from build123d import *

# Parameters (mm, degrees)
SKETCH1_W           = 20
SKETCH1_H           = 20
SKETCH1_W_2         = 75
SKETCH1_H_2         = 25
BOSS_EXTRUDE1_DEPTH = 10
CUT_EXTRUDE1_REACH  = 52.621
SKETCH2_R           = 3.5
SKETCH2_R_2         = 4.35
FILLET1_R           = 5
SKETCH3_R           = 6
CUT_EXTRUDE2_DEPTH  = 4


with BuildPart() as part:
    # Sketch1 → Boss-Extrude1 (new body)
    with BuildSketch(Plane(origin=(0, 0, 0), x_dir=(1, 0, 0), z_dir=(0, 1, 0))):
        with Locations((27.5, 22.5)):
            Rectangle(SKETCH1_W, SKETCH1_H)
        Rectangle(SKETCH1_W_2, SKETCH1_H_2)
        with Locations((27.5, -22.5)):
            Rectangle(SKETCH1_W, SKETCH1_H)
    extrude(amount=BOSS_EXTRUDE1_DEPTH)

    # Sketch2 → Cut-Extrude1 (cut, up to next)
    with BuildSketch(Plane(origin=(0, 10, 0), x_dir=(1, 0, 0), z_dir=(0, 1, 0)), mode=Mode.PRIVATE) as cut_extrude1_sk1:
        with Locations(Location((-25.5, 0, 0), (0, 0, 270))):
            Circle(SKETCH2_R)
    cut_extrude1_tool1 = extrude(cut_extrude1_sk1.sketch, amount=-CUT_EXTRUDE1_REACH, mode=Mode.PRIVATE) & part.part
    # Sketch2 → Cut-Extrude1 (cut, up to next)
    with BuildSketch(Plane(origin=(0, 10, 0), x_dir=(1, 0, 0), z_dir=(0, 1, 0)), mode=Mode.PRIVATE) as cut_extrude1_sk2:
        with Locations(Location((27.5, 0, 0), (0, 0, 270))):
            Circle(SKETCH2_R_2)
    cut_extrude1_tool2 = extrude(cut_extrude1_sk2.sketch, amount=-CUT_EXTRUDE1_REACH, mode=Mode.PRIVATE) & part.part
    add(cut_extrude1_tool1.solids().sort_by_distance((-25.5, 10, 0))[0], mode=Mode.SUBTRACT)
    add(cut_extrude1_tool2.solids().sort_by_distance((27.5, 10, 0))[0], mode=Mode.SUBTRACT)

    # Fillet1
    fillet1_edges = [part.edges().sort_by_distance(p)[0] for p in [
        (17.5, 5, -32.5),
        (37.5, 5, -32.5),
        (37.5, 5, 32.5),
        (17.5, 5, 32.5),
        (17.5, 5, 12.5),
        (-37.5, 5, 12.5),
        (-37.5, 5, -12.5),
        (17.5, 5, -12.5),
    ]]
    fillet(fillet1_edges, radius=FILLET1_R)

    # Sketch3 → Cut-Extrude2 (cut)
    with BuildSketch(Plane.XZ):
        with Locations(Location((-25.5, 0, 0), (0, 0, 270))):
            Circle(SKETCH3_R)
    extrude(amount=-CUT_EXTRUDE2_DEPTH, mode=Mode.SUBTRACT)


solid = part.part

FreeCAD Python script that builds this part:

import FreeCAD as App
import Part
import Sketcher
from FreeCAD import Vector


def edges_at(feature, points):
    """Names of the edges that pass closest to the given points."""
    edges = feature.Shape.Edges
    near = lambda p: min(range(len(edges)), key=lambda i: edges[i].distToShape(Part.Vertex(*p))[0])
    return sorted({f"Edge{near(p) + 1}" for p in points})


def add_polygon(sketch, points):
    """Adds a closed chain of lines whose ends are joined by coincident constraints."""
    first, n = sketch.GeometryCount, len(points)
    for a, b in zip(points, points[1:] + points[:1]):
        sketch.addGeometry(Part.LineSegment(App.Vector(*a, 0), App.Vector(*b, 0)), False)
    for i in range(n):
        sketch.addConstraint(Sketcher.Constraint("Coincident", first + i, 2, first + (i + 1) % n, 1))

doc = App.newDocument("Part")
body = doc.addObject("PartDesign::Body", "Body")

# Sketch on XZ plane
sketch1 = body.newObject("Sketcher::SketchObject", "Sketch")
sketch1.AttachmentSupport = (doc.getObject("XZ_Plane"), [""])
sketch1.MapMode = "FlatFace"
add_polygon(sketch1, [(18, -32), (18, -12), (-38, -12), (-38, 12), (18, 12), (18, 32), (38, 32), (38, -32)])  # lines 0-7
sketch1.addConstraint([
    Sketcher.Constraint("Vertical", 0),
    Sketcher.Constraint("Horizontal", 1),
    Sketcher.Constraint("Vertical", 2),
    Sketcher.Constraint("Horizontal", 3),
    Sketcher.Constraint("Vertical", 4),
    Sketcher.Constraint("Horizontal", 5),
    Sketcher.Constraint("Vertical", 6),
    Sketcher.Constraint("Horizontal", 7),
    Sketcher.Constraint("Symmetric", 0, 2, 3, 2, -1),
    Sketcher.Constraint("Equal", 7, 0),
    Sketcher.Constraint("Equal", 0, 4),
    Sketcher.Constraint("DistanceX", 1, 2, 1, 1, 55.0),
    Sketcher.Constraint("DistanceX", 5, 1, 5, 2, 20.0),
    Sketcher.Constraint("DistanceY", 2, 1, 2, 2, 25.0),
    Sketcher.Constraint("DistanceX", -1, 1, 0, 2, 17.5),
])
pad1 = body.newObject("PartDesign::Pad", "Pad")
pad1.Profile = sketch1
pad1.Length = 10
pad1.Reversed = True

# Sketch on XZ plane
sketch2 = body.newObject("Sketcher::SketchObject", "Sketch001")
sketch2.AttachmentSupport = (doc.getObject("XZ_Plane"), [""])
sketch2.MapMode = "FlatFace"
sketch2.AttachmentOffset = App.Placement(Vector(0, 0, -10), App.Rotation())
sketch2.addGeometry(Part.Circle(Vector(-25.5, 0, 0), Vector(0, 0, 1), 3.5), False)
sketch2.addConstraint([
    Sketcher.Constraint("PointOnObject", 0, 3, -1),
    Sketcher.Constraint("Diameter", 0, 7.0),
    Sketcher.Constraint("DistanceX", 0, 3, -1, 1, 25.5),
])
pocket1 = body.newObject("PartDesign::Pocket", "Pocket")
pocket1.Profile = sketch2
pocket1.Type = "UpToFirst"
pocket1.Reversed = True

# Sketch on XZ plane
sketch3 = body.newObject("Sketcher::SketchObject", "Sketch002")
sketch3.AttachmentSupport = (doc.getObject("XZ_Plane"), [""])
sketch3.MapMode = "FlatFace"
sketch3.AttachmentOffset = App.Placement(Vector(0, 0, -10), App.Rotation())
sketch3.addGeometry(Part.Circle(Vector(27.5, 0, 0), Vector(0, 0, 1), 4.3), False)
sketch3.addConstraint([
    Sketcher.Constraint("PointOnObject", 0, 3, -1),
    Sketcher.Constraint("Diameter", 0, 8.7),
    Sketcher.Constraint("DistanceX", -1, 1, 0, 3, 27.5),
])
pocket2 = body.newObject("PartDesign::Pocket", "Pocket001")
pocket2.Profile = sketch3
pocket2.Type = "UpToFirst"
pocket2.Reversed = True
doc.recompute()

fillet = body.newObject("PartDesign::Fillet", "Fillet")
fillet.Base = (pocket2, edges_at(pocket2, [
    (17.5, 5, -32.5),
    (37.5, 5, -32.5),
    (37.5, 5, 32.5),
    (17.5, 5, 32.5),
    (17.5, 5, 12.5),
    (-37.5, 5, 12.5),
    (-37.5, 5, -12.5),
    (17.5, 5, -12.5),
]))
fillet.Radius = 5

# Sketch on XZ plane
sketch4 = body.newObject("Sketcher::SketchObject", "Sketch003")
sketch4.AttachmentSupport = (doc.getObject("XZ_Plane"), [""])
sketch4.MapMode = "FlatFace"
sketch4.addGeometry(Part.Circle(Vector(-26, 0, 0), Vector(0, 0, 1), 6), False)
sketch4.addConstraint([
    Sketcher.Constraint("PointOnObject", 0, 3, -1),
    Sketcher.Constraint("Diameter", 0, 12.0),
    Sketcher.Constraint("DistanceX", 0, 3, -1, 1, 25.5),
])
pocket3 = body.newObject("PartDesign::Pocket", "Pocket002")
pocket3.Profile = sketch4
pocket3.Length = 4

doc.recompute()
